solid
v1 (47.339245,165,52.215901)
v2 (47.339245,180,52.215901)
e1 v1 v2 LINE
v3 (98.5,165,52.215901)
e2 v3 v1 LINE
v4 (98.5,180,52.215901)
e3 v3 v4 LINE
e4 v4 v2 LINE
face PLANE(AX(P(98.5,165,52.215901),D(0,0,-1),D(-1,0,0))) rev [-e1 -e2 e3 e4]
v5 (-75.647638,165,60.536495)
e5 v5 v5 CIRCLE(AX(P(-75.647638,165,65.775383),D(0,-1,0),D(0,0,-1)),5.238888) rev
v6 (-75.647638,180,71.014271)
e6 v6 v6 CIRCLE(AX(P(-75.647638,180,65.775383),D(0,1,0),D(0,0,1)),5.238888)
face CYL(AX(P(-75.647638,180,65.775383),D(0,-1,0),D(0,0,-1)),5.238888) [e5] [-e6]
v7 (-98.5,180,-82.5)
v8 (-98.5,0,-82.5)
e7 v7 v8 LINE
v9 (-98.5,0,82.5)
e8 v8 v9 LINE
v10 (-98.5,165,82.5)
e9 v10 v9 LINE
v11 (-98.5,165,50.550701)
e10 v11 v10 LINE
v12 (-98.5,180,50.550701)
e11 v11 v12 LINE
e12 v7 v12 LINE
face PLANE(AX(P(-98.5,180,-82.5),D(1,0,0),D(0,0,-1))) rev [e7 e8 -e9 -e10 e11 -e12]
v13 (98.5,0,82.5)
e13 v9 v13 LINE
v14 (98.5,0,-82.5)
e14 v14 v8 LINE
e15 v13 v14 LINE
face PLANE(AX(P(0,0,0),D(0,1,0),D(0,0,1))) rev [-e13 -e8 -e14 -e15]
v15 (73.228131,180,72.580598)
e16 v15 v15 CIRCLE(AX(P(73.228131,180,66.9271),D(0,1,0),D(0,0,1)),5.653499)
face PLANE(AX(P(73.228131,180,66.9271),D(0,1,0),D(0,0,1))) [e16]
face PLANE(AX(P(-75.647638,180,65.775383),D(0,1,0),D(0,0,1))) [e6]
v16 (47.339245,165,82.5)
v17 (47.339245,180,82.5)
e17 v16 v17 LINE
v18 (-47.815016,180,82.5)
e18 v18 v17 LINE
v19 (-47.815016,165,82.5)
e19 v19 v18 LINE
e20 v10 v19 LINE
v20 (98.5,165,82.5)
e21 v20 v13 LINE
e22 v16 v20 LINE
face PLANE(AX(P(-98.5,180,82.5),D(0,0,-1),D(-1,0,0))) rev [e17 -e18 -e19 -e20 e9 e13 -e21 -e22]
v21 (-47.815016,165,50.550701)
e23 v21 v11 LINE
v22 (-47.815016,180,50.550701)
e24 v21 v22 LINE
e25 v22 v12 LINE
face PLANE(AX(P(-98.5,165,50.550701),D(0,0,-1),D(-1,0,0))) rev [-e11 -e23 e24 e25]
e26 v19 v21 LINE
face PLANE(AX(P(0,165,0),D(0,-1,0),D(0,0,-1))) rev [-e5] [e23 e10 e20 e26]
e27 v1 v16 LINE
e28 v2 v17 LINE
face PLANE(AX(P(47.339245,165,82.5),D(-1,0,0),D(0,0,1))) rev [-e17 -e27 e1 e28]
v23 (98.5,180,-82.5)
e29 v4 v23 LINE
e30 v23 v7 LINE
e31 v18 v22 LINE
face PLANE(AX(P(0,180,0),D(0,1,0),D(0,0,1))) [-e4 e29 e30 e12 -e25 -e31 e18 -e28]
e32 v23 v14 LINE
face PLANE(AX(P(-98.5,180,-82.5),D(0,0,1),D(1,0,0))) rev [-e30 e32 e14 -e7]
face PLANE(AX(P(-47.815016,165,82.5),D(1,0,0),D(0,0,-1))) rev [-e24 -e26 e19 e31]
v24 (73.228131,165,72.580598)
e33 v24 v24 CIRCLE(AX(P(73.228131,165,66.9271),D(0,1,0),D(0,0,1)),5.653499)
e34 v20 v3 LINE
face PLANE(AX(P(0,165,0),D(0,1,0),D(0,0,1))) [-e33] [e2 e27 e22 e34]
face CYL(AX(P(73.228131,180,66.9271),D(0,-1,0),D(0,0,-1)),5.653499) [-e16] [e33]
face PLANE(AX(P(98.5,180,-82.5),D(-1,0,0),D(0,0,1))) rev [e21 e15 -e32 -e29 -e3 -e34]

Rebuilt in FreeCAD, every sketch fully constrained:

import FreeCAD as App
import Part
import Sketcher


def add_polygon(sketch, points):
    """Adds a closed chain of lines whose ends are joined by coincident constraints."""
    first, n = sketch.GeometryCount, len(points)
    for a, b in zip(points, points[1:] + points[:1]):
        sketch.addGeometry(Part.LineSegment(App.Vector(*a, 0), App.Vector(*b, 0)), False)
    for i in range(n):
        sketch.addConstraint(Sketcher.Constraint("Coincident", first + i, 2, first + (i + 1) % n, 1))

doc = App.newDocument("Part")
body = doc.addObject("PartDesign::Body", "Body")

sketch1 = body.newObject("Sketcher::SketchObject", "Sketch")
sketch1.AttachmentSupport = (doc.getObject("XZ_Plane"), [""])
sketch1.MapMode = "FlatFace"
add_polygon(sketch1, [(-98, -82), (-98, 82), (98, 82), (98, -82)])
sketch1.addConstraint(Sketcher.Constraint("Vertical", 0))
sketch1.addConstraint(Sketcher.Constraint("Horizontal", 1))
sketch1.addConstraint(Sketcher.Constraint("Vertical", 2))
sketch1.addConstraint(Sketcher.Constraint("Horizontal", 3))
sketch1.addConstraint(Sketcher.Constraint("Symmetric", 0, 2, 2, 2, -1, 1))
sketch1.addConstraint(Sketcher.Constraint("DistanceX", 1, 1, 1, 2, 197.0))
sketch1.addConstraint(Sketcher.Constraint("DistanceY", 0, 1, 0, 2, 165.0))
pad1 = body.newObject("PartDesign::Pad", "Pad")
pad1.Profile = sketch1
pad1.Length = 180
pad1.Reversed = True

sketch2 = body.newObject("Sketcher::SketchObject", "Sketch001")
sketch2.AttachmentSupport = (doc.getObject("XZ_Plane"), [""])
sketch2.MapMode = "FlatFace"
sketch2.AttachmentOffset = App.Placement(App.Vector(0, 0, -180), App.Rotation())
add_polygon(sketch2, [(-98, 51), (-98, 82), (-48, 82), (-48, 51)])
sketch2.addConstraint(Sketcher.Constraint("Vertical", 0))
sketch2.addConstraint(Sketcher.Constraint("Horizontal", 1))
sketch2.addConstraint(Sketcher.Constraint("Vertical", 2))
sketch2.addConstraint(Sketcher.Constraint("Horizontal", 3))
sketch2.addConstraint(Sketcher.Constraint("DistanceX", 0, 2, -1, 1, 98.5))
sketch2.addConstraint(Sketcher.Constraint("DistanceY", -1, 1, 0, 2, 82.5))
sketch2.addConstraint(Sketcher.Constraint("DistanceY", 0, 1, 0, 2, 31.949299))
sketch2.addConstraint(Sketcher.Constraint("DistanceX", 1, 1, 1, 2, 50.684984))
pocket1 = body.newObject("PartDesign::Pocket", "Pocket")
pocket1.Profile = sketch2
pocket1.Length = 15
pocket1.Reversed = True

sketch3 = body.newObject("Sketcher::SketchObject", "Sketch002")
sketch3.AttachmentSupport = (doc.getObject("XZ_Plane"), [""])
sketch3.MapMode = "FlatFace"
sketch3.AttachmentOffset = App.Placement(App.Vector(0, 0, -180), App.Rotation())
add_polygon(sketch3, [(47, 52), (47, 82), (98, 82), (98, 52)])
sketch3.addConstraint(Sketcher.Constraint("Vertical", 0))
sketch3.addConstraint(Sketcher.Constraint("Horizontal", 1))
sketch3.addConstraint(Sketcher.Constraint("Vertical", 2))
sketch3.addConstraint(Sketcher.Constraint("Horizontal", 3))
sketch3.addConstraint(Sketcher.Constraint("DistanceY", -1, 1, 0, 2, 82.5))
sketch3.addConstraint(Sketcher.Constraint("DistanceX", -1, 1, 1, 2, 98.5))
sketch3.addConstraint(Sketcher.Constraint("DistanceY", 0, 1, 0, 2, 30.284099))
sketch3.addConstraint(Sketcher.Constraint("DistanceX", 1, 1, 1, 2, 51.160755))
pocket2 = body.newObject("PartDesign::Pocket", "Pocket001")
pocket2.Profile = sketch3
pocket2.Length = 15
pocket2.Reversed = True

sketch4 = body.newObject("Sketcher::SketchObject", "Sketch003")
sketch4.AttachmentSupport = (doc.getObject("XZ_Plane"), [""])
sketch4.MapMode = "FlatFace"
sketch4.AttachmentOffset = App.Placement(App.Vector(0, 0, -165), App.Rotation())
sketch4.addGeometry(Part.Circle(App.Vector(-76, 66, 0), App.Vector(0, 0, 1), 5), False)
sketch4.addConstraint(Sketcher.Constraint("Diameter", 0, 10.477776))
sketch4.addConstraint(Sketcher.Constraint("DistanceX", 0, 3, -1, 1, 75.647638))
sketch4.addConstraint(Sketcher.Constraint("DistanceY", -1, 1, 0, 3, 65.775383))
pad2 = body.newObject("PartDesign::Pad", "Pad001")
pad2.Profile = sketch4
pad2.Length = 15
pad2.Reversed = True

sketch5 = body.newObject("Sketcher::SketchObject", "Sketch004")
sketch5.AttachmentSupport = (doc.getObject("XZ_Plane"), [""])
sketch5.MapMode = "FlatFace"
sketch5.AttachmentOffset = App.Placement(App.Vector(0, 0, -165), App.Rotation())
sketch5.addGeometry(Part.Circle(App.Vector(73, 67, 0), App.Vector(0, 0, 1), 6), False)
sketch5.addConstraint(Sketcher.Constraint("Diameter", 0, 11.306997))
sketch5.addConstraint(Sketcher.Constraint("DistanceY", -1, 1, 0, 3, 66.9271))
sketch5.addConstraint(Sketcher.Constraint("DistanceX", -1, 1, 0, 3, 73.228131))
pad3 = body.newObject("PartDesign::Pad", "Pad002")
pad3.Profile = sketch5
pad3.Length = 15
pad3.Reversed = True

doc.recompute()
